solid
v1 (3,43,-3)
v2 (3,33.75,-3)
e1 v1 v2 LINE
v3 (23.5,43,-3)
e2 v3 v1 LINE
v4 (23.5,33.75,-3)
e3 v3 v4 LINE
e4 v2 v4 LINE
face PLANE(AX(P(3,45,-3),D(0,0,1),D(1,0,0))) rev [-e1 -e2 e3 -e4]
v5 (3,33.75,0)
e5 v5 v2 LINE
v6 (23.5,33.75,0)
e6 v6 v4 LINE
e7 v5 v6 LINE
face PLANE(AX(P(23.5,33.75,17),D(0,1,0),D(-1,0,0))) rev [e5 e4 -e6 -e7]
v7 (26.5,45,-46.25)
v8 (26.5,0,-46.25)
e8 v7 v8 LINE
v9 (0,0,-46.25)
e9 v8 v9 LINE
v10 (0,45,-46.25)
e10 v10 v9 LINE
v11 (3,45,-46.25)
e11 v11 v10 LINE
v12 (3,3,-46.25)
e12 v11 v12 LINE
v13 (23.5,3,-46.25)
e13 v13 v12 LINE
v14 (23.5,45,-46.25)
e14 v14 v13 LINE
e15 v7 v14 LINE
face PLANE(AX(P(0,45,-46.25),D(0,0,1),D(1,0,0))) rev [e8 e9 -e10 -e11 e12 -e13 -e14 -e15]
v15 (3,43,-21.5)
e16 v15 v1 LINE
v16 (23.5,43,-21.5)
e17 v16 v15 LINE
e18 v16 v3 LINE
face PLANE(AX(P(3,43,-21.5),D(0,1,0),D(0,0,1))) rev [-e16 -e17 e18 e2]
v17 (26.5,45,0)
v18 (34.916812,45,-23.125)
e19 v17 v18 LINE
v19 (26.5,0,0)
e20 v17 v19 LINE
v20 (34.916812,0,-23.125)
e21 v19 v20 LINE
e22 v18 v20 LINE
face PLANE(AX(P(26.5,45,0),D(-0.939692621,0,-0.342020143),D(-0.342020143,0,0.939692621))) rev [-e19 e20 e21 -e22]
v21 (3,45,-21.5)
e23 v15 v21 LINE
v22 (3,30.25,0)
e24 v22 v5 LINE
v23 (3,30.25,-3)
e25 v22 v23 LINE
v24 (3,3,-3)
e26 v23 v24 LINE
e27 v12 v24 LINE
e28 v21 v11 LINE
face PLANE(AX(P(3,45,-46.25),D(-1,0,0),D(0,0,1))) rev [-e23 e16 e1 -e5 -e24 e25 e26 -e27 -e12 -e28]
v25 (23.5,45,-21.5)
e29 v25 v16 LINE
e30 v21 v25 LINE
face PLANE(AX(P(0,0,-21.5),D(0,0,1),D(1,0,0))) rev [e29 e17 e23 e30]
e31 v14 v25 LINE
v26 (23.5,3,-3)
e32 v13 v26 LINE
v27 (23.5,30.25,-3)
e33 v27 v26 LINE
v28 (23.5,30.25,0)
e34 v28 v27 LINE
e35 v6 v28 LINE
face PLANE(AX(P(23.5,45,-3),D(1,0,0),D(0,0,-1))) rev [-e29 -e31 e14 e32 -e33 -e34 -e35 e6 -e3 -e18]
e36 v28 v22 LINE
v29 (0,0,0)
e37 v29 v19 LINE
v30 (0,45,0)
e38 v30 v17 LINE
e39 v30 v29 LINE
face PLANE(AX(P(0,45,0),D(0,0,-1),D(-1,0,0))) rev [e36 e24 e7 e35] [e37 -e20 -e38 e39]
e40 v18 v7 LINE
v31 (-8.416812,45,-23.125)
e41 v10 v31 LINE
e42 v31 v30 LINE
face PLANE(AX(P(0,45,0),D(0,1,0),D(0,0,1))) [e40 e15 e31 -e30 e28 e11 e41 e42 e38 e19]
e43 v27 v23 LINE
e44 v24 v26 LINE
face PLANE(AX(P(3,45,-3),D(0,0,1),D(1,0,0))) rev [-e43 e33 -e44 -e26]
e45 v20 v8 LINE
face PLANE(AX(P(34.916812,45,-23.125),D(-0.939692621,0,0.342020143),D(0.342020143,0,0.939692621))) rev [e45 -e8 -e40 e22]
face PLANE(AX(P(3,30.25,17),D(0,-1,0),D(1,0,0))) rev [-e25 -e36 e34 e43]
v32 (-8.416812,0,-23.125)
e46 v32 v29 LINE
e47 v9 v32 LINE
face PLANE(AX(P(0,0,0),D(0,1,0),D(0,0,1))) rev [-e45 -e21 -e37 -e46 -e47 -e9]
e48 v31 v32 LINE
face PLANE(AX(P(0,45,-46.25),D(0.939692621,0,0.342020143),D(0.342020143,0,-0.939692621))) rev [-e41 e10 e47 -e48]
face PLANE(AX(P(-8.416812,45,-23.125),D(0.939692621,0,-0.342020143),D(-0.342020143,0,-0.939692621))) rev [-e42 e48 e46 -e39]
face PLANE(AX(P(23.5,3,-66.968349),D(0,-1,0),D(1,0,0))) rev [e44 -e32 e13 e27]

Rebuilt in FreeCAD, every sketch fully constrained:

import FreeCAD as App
import Part
import Sketcher
Q = App.Units.Quantity


def add_polygon(sketch, points):
    """Adds a closed chain of lines whose ends are joined by coincident constraints."""
    first, n = sketch.GeometryCount, len(points)
    for a, b in zip(points, points[1:] + points[:1]):
        sketch.addGeometry(Part.LineSegment(App.Vector(*a, 0), App.Vector(*b, 0)), False)
    for i in range(n):
        sketch.addConstraint(Sketcher.Constraint("Coincident", first + i, 2, first + (i + 1) % n, 1))

doc = App.newDocument("Part")
body = doc.addObject("PartDesign::Body", "Body")

sketch1 = doc.addObject("Sketcher::SketchObject", "Sketch")
body.addObject(sketch1)
sketch1.AttachmentSupport = (doc.XZ_Plane, [""])
sketch1.MapMode = "FlatFace"
add_polygon(sketch1, [(0, 0), (26.5, 0), (34.916812, -23.125), (26.5, -46.25), (23.5, -46.25), (23.5, -3), (3, -3), (3, -46.25), (0, -46.25), (-8.416812, -23.125)])
sketch1.addConstraint(Sketcher.Constraint("Horizontal", 0))
sketch1.addConstraint(Sketcher.Constraint("Horizontal", 3))
sketch1.addConstraint(Sketcher.Constraint("Vertical", 4))
sketch1.addConstraint(Sketcher.Constraint("Horizontal", 5))
sketch1.addConstraint(Sketcher.Constraint("Vertical", 6))
sketch1.addConstraint(Sketcher.Constraint("Horizontal", 7))
sketch1.addConstraint(Sketcher.Constraint("Coincident", 9, 2, -1, 1))
sketch1.addConstraint(Sketcher.Constraint("PointOnObject", 7, 2, -2))
sketch1.addConstraint(Sketcher.Constraint("Parallel", 1, 8))
sketch1.addConstraint(Sketcher.Constraint("Parallel", 2, 9))
sketch1.addConstraint(Sketcher.Constraint("Horizontal", 3, 2, 6, 2))
sketch1.addConstraint(Sketcher.Constraint("Horizontal", 1, 2, 8, 2))
sketch1.addConstraint(Sketcher.Constraint("Vertical", 0, 2, 2, 2))
sketch1.addConstraint(Sketcher.Constraint("Equal", 3, 7))
sketch1.addConstraint(Sketcher.Constraint("DistanceX", 3, 2, 3, 1, Q("3 mm")))
sketch1.addConstraint(Sketcher.Constraint("Angle", 1, Q("-70 deg")))
sketch1.addConstraint(Sketcher.Constraint("DistanceX", 0, 1, 0, 2, Q("26.5 mm")))
sketch1.addConstraint(Sketcher.Constraint("DistanceY", 4, 2, -1, 1, Q("3 mm")))
sketch1.addConstraint(Sketcher.Constraint("DistanceY", 4, 1, 4, 2, Q("43.25 mm")))
pad1 = doc.addObject("PartDesign::Pad", "Pad")
body.addObject(pad1)
pad1.Profile = sketch1
pad1.Length = 45
pad1.Reversed = True

sketch2 = doc.addObject("Sketcher::SketchObject", "Sketch001")
body.addObject(sketch2)
sketch2.AttachmentSupport = (doc.XY_Plane, [""])
sketch2.MapMode = "FlatFace"
sketch2.AttachmentOffset = App.Placement(App.Vector(0, 0, -3), App.Rotation())
add_polygon(sketch2, [(23.5, 45), (23.5, 43), (3, 43), (3, 45)])
sketch2.addConstraint(Sketcher.Constraint("Vertical", 0))
sketch2.addConstraint(Sketcher.Constraint("Horizontal", 1))
sketch2.addConstraint(Sketcher.Constraint("Vertical", 2))
sketch2.addConstraint(Sketcher.Constraint("Horizontal", 3))
sketch2.addConstraint(Sketcher.Constraint("DistanceY", 0, 2, 0, 1, Q("2 mm")))
sketch2.addConstraint(Sketcher.Constraint("DistanceX", 1, 2, 1, 1, Q("20.5 mm")))
sketch2.addConstraint(Sketcher.Constraint("DistanceY", -1, 1, 0, 2, Q("43 mm")))
sketch2.addConstraint(Sketcher.Constraint("DistanceX", -1, 1, 1, 2, Q("3 mm")))
pad2 = doc.addObject("PartDesign::Pad", "Pad001")
body.addObject(pad2)
pad2.Profile = sketch2
pad2.Length = 18.5
pad2.Reversed = True

sketch3 = doc.addObject("Sketcher::SketchObject", "Sketch002")
body.addObject(sketch3)
sketch3.AttachmentSupport = (doc.XY_Plane, [""])
sketch3.MapMode = "FlatFace"
sketch3.AttachmentOffset = App.Placement(App.Vector(0, 0, -3), App.Rotation())
add_polygon(sketch3, [(23.5, 33.75), (23.5, 30.25), (3, 30.25), (3, 33.75)])
sketch3.addConstraint(Sketcher.Constraint("Vertical", 0))
sketch3.addConstraint(Sketcher.Constraint("Horizontal", 1))
sketch3.addConstraint(Sketcher.Constraint("Vertical", 2))
sketch3.addConstraint(Sketcher.Constraint("Horizontal", 3))
sketch3.addConstraint(Sketcher.Constraint("DistanceX", 1, 2, 1, 1, Q("20.5 mm")))
sketch3.addConstraint(Sketcher.Constraint("DistanceY", 0, 2, 0, 1, Q("3.5 mm")))
sketch3.addConstraint(Sketcher.Constraint("DistanceX", -1, 1, 1, 2, Q("3 mm")))
sketch3.addConstraint(Sketcher.Constraint("DistanceY", -1, 1, 0, 2, Q("30.25 mm")))
pocket1 = doc.addObject("PartDesign::Pocket", "Pocket")
body.addObject(pocket1)
pocket1.Profile = sketch3
pocket1.Length = 20
pocket1.Reversed = True

sketch4 = doc.addObject("Sketcher::SketchObject", "Sketch003")
body.addObject(sketch4)
sketch4.AttachmentSupport = (doc.XY_Plane, [""])
sketch4.MapMode = "FlatFace"
sketch4.AttachmentOffset = App.Placement(App.Vector(0, 0, -3), App.Rotation())
add_polygon(sketch4, [(23.5, 3), (23.5, 0), (3, 0), (3, 3)])
sketch4.addConstraint(Sketcher.Constraint("Vertical", 0))
sketch4.addConstraint(Sketcher.Constraint("Horizontal", 1))
sketch4.addConstraint(Sketcher.Constraint("Vertical", 2))
sketch4.addConstraint(Sketcher.Constraint("Horizontal", 3))
sketch4.addConstraint(Sketcher.Constraint("PointOnObject", 0, 2, -1))
sketch4.addConstraint(Sketcher.Constraint("DistanceY", 0, 2, 0, 1, Q("3 mm")))
sketch4.addConstraint(Sketcher.Constraint("DistanceX", 1, 2, 1, 1, Q("20.5 mm")))
sketch4.addConstraint(Sketcher.Constraint("DistanceX", -1, 1, 1, 2, Q("3 mm")))
pad3 = doc.addObject("PartDesign::Pad", "Pad002")
body.addObject(pad3)
pad3.Profile = sketch4
pad3.Length = 43.25
pad3.Reversed = True

doc.recompute()
